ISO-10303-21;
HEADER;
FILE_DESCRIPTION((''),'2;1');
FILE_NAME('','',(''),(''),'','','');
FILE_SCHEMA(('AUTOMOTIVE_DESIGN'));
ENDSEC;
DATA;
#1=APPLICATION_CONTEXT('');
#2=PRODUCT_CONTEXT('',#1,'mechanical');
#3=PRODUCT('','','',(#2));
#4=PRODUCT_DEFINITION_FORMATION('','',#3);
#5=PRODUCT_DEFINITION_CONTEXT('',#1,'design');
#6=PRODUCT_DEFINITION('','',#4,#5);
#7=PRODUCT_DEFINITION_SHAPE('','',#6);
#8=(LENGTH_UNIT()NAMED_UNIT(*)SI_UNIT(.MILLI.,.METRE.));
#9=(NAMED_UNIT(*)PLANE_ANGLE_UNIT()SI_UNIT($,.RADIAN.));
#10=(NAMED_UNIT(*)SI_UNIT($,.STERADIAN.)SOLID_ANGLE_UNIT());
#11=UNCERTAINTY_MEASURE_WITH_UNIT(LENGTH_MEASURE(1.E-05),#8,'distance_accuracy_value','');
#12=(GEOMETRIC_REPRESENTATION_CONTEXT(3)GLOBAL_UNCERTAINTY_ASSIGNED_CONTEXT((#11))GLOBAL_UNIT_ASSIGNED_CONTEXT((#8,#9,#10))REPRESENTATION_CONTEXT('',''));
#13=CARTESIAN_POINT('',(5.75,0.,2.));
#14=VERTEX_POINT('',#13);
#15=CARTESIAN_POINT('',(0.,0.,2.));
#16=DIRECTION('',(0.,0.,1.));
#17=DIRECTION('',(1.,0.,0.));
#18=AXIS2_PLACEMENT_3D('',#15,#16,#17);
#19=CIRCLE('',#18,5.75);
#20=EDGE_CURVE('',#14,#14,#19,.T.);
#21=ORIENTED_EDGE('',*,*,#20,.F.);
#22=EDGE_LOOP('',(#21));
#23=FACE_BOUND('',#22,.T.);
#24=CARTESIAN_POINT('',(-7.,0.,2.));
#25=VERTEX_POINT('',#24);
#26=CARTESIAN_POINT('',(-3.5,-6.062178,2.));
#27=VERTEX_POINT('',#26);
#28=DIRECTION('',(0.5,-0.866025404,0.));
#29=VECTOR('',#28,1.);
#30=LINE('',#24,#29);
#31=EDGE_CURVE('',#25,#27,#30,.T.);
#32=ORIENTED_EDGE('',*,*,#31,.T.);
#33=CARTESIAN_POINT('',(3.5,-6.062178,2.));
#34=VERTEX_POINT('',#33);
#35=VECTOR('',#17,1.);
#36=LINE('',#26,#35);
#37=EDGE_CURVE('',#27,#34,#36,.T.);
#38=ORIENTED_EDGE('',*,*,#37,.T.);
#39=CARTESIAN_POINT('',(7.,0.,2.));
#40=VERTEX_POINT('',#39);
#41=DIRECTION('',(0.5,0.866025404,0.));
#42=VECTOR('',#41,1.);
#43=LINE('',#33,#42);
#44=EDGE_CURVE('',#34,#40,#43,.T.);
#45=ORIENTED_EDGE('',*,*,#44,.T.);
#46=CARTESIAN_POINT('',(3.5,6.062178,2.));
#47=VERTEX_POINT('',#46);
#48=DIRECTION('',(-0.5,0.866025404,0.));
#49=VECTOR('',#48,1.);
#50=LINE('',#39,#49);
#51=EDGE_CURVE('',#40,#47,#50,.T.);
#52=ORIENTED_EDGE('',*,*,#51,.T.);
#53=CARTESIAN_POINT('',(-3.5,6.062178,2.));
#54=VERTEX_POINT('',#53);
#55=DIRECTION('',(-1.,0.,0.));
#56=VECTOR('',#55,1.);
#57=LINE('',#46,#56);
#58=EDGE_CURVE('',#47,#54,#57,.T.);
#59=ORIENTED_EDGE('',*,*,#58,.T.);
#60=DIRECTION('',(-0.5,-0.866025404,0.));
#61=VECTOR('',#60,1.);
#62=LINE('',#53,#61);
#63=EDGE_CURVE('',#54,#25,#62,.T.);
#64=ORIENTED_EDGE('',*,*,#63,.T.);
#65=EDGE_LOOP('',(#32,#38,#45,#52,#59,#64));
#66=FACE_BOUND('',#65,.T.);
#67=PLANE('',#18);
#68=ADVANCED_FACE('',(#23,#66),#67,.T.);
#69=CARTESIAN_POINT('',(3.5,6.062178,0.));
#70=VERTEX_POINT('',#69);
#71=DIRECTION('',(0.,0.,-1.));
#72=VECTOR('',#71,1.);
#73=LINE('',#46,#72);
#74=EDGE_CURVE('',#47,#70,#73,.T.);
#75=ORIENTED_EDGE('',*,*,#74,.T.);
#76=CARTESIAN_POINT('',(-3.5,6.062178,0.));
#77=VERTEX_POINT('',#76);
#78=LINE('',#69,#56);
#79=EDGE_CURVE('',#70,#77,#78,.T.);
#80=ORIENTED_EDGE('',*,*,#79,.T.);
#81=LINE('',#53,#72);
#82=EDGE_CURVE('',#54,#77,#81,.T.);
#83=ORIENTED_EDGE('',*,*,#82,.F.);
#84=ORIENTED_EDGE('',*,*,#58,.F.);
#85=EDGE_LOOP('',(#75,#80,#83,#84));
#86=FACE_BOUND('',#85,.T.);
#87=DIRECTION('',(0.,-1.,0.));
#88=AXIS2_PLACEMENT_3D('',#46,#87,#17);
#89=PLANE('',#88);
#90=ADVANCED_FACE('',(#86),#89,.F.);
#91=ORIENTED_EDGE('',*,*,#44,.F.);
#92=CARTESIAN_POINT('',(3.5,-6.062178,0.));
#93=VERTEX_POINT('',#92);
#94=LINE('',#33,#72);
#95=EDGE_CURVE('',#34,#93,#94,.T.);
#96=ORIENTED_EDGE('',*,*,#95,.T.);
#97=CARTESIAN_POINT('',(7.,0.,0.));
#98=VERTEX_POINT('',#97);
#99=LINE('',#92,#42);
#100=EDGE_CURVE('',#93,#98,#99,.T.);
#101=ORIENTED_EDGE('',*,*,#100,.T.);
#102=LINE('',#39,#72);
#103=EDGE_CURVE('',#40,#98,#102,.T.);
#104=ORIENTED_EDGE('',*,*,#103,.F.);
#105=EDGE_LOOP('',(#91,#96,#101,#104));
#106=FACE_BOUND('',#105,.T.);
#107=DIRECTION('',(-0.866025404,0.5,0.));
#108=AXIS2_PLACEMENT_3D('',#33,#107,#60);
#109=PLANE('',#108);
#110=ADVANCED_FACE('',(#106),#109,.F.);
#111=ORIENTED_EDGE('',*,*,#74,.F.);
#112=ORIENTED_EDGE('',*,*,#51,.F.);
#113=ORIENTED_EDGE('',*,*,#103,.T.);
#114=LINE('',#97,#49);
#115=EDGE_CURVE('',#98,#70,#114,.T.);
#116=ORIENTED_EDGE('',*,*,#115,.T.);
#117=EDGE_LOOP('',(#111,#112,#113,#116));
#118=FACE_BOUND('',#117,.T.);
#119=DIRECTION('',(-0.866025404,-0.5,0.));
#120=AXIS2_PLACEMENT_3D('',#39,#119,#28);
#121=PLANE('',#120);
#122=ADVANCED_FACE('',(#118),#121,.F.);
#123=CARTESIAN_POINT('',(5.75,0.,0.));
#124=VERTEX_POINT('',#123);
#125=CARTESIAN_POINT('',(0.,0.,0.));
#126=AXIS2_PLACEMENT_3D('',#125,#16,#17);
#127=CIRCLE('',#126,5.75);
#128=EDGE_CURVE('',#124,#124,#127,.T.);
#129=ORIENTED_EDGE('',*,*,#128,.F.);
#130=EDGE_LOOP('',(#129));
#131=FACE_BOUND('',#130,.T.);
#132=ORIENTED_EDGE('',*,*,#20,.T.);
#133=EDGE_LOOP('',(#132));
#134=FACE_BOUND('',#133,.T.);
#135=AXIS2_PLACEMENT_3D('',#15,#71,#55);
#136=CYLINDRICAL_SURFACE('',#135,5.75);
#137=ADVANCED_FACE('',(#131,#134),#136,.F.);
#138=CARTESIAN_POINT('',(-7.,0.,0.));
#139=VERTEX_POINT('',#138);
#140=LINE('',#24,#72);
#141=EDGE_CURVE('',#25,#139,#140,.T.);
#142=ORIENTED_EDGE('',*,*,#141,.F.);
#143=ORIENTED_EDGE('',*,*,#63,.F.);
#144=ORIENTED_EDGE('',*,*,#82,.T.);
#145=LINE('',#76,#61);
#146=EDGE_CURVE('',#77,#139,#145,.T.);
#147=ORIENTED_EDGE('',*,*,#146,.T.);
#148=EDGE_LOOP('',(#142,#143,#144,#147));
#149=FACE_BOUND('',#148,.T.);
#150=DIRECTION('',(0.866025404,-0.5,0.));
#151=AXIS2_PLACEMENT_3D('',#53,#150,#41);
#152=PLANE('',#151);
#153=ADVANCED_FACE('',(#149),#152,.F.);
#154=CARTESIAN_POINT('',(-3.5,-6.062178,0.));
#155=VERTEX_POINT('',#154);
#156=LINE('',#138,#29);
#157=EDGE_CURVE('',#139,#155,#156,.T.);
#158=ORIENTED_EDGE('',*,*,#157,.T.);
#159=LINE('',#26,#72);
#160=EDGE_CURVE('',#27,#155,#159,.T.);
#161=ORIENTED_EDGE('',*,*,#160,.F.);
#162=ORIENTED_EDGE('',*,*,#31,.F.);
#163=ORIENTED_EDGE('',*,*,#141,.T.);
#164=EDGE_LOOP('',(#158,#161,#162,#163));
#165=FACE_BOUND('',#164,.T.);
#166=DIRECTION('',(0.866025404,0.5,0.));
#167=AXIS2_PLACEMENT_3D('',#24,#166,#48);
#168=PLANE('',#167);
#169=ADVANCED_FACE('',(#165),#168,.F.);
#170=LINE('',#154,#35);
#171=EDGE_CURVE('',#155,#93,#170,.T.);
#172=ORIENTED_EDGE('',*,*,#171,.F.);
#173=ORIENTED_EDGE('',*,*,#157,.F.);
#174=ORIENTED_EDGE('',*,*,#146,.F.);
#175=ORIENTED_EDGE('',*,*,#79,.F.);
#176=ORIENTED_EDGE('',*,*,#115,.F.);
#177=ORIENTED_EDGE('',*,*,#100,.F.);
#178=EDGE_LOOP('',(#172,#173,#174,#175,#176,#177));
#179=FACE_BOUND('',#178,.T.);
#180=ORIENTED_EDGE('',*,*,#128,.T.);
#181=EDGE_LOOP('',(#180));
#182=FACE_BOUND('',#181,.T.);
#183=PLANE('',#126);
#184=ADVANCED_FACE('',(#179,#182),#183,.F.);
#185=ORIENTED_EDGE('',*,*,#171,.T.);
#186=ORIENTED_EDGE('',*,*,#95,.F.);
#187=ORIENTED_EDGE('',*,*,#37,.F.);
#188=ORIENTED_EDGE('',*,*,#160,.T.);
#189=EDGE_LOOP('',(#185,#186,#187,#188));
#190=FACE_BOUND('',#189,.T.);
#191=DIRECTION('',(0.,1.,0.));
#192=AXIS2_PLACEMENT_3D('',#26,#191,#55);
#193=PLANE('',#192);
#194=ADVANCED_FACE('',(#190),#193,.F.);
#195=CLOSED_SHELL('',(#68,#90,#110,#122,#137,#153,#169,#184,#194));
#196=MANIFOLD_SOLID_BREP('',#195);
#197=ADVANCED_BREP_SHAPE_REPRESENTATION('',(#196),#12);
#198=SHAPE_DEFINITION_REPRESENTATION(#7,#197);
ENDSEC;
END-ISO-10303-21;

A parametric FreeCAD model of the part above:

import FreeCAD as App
import Part
import Sketcher

V = App.Vector
Q = App.Units.Quantity

doc = App.newDocument("Part")
body = doc.addObject("PartDesign::Body", "Body")

# Sketch on XY plane
sketch1 = body.newObject("Sketcher::SketchObject", "Sketch")
sketch1.AttachmentSupport = (doc.getObject("XY_Plane"), [""])
sketch1.MapMode = "FlatFace"
sketch1.addGeometry(Part.LineSegment(V(7, 0, 0), V(4, 6, 0)), False)
sketch1.addGeometry(Part.LineSegment(V(4, 6, 0), V(-4, 6, 0)), False)
sketch1.addGeometry(Part.LineSegment(V(-4, 6, 0), V(-7, 0, 0)), False)
sketch1.addGeometry(Part.LineSegment(V(-7, 0, 0), V(-4, -6, 0)), False)
sketch1.addGeometry(Part.LineSegment(V(-4, -6, 0), V(4, -6, 0)), False)
sketch1.addGeometry(Part.LineSegment(V(4, -6, 0), V(7, 0, 0)), False)
sketch1.addGeometry(Part.Circle(V(0, 0, 0), V(0, 0, 1), 6), False)
sketch1.addConstraint(Sketcher.Constraint("Coincident", 0, 2, 1, 1))
sketch1.addConstraint(Sketcher.Constraint("Coincident", 1, 2, 2, 1))
sketch1.addConstraint(Sketcher.Constraint("Coincident", 2, 2, 3, 1))
sketch1.addConstraint(Sketcher.Constraint("Coincident", 3, 2, 4, 1))
sketch1.addConstraint(Sketcher.Constraint("Coincident", 4, 2, 5, 1))
sketch1.addConstraint(Sketcher.Constraint("Coincident", 5, 2, 0, 1))
sketch1.addConstraint(Sketcher.Constraint("Horizontal", 1))
sketch1.addConstraint(Sketcher.Constraint("Horizontal", 4))
sketch1.addConstraint(Sketcher.Constraint("Coincident", 6, 3, -1, 1))
sketch1.addConstraint(Sketcher.Constraint("Symmetric", 0, 2, 3, 2, -1, 1))
sketch1.addConstraint(Sketcher.Constraint("Symmetric", 2, 2, 5, 2, -1, 1))
sketch1.addConstraint(Sketcher.Constraint("PointOnObject", 2, 2, -1))
sketch1.addConstraint(Sketcher.Constraint("Parallel", 2, 5))
sketch1.addConstraint(Sketcher.Constraint("Vertical", 1, 2, 3, 2))
sketch1.addConstraint(Sketcher.Constraint("Diameter", 6, Q("11.5 mm")))
sketch1.addConstraint(Sketcher.Constraint("DistanceX", 1, 2, 1, 1, Q("7 mm")))
sketch1.addConstraint(Sketcher.Constraint("Angle", 0, Q("120 deg")))
sketch1.addConstraint(Sketcher.Constraint("Distance", 0, Q("7 mm")))
pad1 = body.newObject("PartDesign::Pad", "Pad")
pad1.Profile = sketch1
pad1.Length = 2

doc.recompute()
